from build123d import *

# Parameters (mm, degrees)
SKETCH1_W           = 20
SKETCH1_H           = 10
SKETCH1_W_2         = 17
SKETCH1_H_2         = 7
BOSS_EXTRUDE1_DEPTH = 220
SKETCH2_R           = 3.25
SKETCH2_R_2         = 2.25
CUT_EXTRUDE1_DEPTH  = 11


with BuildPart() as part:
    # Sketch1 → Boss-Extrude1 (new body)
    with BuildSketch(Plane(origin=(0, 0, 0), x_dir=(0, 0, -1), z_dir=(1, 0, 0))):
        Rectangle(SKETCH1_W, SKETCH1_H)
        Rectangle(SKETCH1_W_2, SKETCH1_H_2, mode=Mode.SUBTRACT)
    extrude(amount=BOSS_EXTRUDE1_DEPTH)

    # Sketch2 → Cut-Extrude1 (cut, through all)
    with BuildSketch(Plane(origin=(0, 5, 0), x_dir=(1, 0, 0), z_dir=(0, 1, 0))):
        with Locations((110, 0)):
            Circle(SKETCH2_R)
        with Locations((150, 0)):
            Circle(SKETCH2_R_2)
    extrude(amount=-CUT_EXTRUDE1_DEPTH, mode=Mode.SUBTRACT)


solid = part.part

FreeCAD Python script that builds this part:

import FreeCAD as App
import Part
import Sketcher

V = App.Vector
Q = App.Units.Quantity

doc = App.newDocument("Part")
body = doc.addObject("PartDesign::Body", "Body")

# Sketch on YZ plane
sketch1 = body.newObject("Sketcher::SketchObject", "Sketch")
sketch1.AttachmentSupport = (doc.getObject("YZ_Plane"), [""])
sketch1.MapMode = "FlatFace"
sketch1.addGeometry([
    Part.LineSegment(V(5, 10, 0), V(-5, 10, 0)),  # 0
    Part.LineSegment(V(-5, 10, 0), V(-5, -10, 0)),  # 1
    Part.LineSegment(V(-5, -10, 0), V(5, -10, 0)),  # 2
    Part.LineSegment(V(5, -10, 0), V(5, 10, 0)),  # 3
    Part.LineSegment(V(-4, -8, 0), V(-4, 8, 0)),  # 4
    Part.LineSegment(V(-4, 8, 0), V(4, 8, 0)),  # 5
    Part.LineSegment(V(4, 8, 0), V(4, -8, 0)),  # 6
    Part.LineSegment(V(4, -8, 0), V(-4, -8, 0)),  # 7
], False)
sketch1.addConstraint([
    Sketcher.Constraint("Coincident", 0, 2, 1, 1),
    Sketcher.Constraint("Coincident", 1, 2, 2, 1),
    Sketcher.Constraint("Coincident", 2, 2, 3, 1),
    Sketcher.Constraint("Coincident", 3, 2, 0, 1),
    Sketcher.Constraint("Coincident", 4, 2, 5, 1),
    Sketcher.Constraint("Coincident", 5, 2, 6, 1),
    Sketcher.Constraint("Coincident", 6, 2, 7, 1),
    Sketcher.Constraint("Coincident", 7, 2, 4, 1),
    Sketcher.Constraint("Horizontal", 0),
    Sketcher.Constraint("Vertical", 1),
    Sketcher.Constraint("Horizontal", 2),
    Sketcher.Constraint("Vertical", 3),
    Sketcher.Constraint("Vertical", 4),
    Sketcher.Constraint("Horizontal", 5),
    Sketcher.Constraint("Vertical", 6),
    Sketcher.Constraint("Horizontal", 7),
    Sketcher.Constraint("Symmetric", 0, 2, 2, 2, -1, 1),
    Sketcher.Constraint("Symmetric", 4, 2, 6, 2, -1, 1),
    Sketcher.Constraint("DistanceX", 0, 2, 0, 1, Q("10 mm")),
    Sketcher.Constraint("DistanceX", 5, 1, 5, 2, Q("7 mm")),
    Sketcher.Constraint("DistanceY", 1, 2, 1, 1, Q("20 mm")),
    Sketcher.Constraint("DistanceY", 4, 1, 4, 2, Q("17 mm")),
])
pad1 = body.newObject("PartDesign::Pad", "Pad")
pad1.Profile = sketch1
pad1.Length = 220

# Sketch on XZ plane
sketch2 = body.newObject("Sketcher::SketchObject", "Sketch001")
sketch2.AttachmentSupport = (doc.getObject("XZ_Plane"), [""])
sketch2.MapMode = "FlatFace"
sketch2.AttachmentOffset = App.Placement(V(0, 0, -5), App.Rotation())
sketch2.addGeometry([
    Part.Circle(V(110, 0, 0), V(0, 0, 1), 3.2),
    Part.Circle(V(150, 0, 0), V(0, 0, 1), 2.2),
], False)
sketch2.addConstraint([
    Sketcher.Constraint("PointOnObject", 0, 3, -1),
    Sketcher.Constraint("PointOnObject", 1, 3, -1),
    Sketcher.Constraint("Diameter", 0, Q("6.5 mm")),
    Sketcher.Constraint("Diameter", 1, Q("4.5 mm")),
    Sketcher.Constraint("DistanceX", -1, 1, 0, 3, Q("110 mm")),
    Sketcher.Constraint("DistanceX", -1, 1, 1, 3, Q("150 mm")),
])
pocket1 = body.newObject("PartDesign::Pocket", "Pocket")
pocket1.Profile = sketch2
pocket1.Type = "ThroughAll"
pocket1.Reversed = True

doc.recompute()
